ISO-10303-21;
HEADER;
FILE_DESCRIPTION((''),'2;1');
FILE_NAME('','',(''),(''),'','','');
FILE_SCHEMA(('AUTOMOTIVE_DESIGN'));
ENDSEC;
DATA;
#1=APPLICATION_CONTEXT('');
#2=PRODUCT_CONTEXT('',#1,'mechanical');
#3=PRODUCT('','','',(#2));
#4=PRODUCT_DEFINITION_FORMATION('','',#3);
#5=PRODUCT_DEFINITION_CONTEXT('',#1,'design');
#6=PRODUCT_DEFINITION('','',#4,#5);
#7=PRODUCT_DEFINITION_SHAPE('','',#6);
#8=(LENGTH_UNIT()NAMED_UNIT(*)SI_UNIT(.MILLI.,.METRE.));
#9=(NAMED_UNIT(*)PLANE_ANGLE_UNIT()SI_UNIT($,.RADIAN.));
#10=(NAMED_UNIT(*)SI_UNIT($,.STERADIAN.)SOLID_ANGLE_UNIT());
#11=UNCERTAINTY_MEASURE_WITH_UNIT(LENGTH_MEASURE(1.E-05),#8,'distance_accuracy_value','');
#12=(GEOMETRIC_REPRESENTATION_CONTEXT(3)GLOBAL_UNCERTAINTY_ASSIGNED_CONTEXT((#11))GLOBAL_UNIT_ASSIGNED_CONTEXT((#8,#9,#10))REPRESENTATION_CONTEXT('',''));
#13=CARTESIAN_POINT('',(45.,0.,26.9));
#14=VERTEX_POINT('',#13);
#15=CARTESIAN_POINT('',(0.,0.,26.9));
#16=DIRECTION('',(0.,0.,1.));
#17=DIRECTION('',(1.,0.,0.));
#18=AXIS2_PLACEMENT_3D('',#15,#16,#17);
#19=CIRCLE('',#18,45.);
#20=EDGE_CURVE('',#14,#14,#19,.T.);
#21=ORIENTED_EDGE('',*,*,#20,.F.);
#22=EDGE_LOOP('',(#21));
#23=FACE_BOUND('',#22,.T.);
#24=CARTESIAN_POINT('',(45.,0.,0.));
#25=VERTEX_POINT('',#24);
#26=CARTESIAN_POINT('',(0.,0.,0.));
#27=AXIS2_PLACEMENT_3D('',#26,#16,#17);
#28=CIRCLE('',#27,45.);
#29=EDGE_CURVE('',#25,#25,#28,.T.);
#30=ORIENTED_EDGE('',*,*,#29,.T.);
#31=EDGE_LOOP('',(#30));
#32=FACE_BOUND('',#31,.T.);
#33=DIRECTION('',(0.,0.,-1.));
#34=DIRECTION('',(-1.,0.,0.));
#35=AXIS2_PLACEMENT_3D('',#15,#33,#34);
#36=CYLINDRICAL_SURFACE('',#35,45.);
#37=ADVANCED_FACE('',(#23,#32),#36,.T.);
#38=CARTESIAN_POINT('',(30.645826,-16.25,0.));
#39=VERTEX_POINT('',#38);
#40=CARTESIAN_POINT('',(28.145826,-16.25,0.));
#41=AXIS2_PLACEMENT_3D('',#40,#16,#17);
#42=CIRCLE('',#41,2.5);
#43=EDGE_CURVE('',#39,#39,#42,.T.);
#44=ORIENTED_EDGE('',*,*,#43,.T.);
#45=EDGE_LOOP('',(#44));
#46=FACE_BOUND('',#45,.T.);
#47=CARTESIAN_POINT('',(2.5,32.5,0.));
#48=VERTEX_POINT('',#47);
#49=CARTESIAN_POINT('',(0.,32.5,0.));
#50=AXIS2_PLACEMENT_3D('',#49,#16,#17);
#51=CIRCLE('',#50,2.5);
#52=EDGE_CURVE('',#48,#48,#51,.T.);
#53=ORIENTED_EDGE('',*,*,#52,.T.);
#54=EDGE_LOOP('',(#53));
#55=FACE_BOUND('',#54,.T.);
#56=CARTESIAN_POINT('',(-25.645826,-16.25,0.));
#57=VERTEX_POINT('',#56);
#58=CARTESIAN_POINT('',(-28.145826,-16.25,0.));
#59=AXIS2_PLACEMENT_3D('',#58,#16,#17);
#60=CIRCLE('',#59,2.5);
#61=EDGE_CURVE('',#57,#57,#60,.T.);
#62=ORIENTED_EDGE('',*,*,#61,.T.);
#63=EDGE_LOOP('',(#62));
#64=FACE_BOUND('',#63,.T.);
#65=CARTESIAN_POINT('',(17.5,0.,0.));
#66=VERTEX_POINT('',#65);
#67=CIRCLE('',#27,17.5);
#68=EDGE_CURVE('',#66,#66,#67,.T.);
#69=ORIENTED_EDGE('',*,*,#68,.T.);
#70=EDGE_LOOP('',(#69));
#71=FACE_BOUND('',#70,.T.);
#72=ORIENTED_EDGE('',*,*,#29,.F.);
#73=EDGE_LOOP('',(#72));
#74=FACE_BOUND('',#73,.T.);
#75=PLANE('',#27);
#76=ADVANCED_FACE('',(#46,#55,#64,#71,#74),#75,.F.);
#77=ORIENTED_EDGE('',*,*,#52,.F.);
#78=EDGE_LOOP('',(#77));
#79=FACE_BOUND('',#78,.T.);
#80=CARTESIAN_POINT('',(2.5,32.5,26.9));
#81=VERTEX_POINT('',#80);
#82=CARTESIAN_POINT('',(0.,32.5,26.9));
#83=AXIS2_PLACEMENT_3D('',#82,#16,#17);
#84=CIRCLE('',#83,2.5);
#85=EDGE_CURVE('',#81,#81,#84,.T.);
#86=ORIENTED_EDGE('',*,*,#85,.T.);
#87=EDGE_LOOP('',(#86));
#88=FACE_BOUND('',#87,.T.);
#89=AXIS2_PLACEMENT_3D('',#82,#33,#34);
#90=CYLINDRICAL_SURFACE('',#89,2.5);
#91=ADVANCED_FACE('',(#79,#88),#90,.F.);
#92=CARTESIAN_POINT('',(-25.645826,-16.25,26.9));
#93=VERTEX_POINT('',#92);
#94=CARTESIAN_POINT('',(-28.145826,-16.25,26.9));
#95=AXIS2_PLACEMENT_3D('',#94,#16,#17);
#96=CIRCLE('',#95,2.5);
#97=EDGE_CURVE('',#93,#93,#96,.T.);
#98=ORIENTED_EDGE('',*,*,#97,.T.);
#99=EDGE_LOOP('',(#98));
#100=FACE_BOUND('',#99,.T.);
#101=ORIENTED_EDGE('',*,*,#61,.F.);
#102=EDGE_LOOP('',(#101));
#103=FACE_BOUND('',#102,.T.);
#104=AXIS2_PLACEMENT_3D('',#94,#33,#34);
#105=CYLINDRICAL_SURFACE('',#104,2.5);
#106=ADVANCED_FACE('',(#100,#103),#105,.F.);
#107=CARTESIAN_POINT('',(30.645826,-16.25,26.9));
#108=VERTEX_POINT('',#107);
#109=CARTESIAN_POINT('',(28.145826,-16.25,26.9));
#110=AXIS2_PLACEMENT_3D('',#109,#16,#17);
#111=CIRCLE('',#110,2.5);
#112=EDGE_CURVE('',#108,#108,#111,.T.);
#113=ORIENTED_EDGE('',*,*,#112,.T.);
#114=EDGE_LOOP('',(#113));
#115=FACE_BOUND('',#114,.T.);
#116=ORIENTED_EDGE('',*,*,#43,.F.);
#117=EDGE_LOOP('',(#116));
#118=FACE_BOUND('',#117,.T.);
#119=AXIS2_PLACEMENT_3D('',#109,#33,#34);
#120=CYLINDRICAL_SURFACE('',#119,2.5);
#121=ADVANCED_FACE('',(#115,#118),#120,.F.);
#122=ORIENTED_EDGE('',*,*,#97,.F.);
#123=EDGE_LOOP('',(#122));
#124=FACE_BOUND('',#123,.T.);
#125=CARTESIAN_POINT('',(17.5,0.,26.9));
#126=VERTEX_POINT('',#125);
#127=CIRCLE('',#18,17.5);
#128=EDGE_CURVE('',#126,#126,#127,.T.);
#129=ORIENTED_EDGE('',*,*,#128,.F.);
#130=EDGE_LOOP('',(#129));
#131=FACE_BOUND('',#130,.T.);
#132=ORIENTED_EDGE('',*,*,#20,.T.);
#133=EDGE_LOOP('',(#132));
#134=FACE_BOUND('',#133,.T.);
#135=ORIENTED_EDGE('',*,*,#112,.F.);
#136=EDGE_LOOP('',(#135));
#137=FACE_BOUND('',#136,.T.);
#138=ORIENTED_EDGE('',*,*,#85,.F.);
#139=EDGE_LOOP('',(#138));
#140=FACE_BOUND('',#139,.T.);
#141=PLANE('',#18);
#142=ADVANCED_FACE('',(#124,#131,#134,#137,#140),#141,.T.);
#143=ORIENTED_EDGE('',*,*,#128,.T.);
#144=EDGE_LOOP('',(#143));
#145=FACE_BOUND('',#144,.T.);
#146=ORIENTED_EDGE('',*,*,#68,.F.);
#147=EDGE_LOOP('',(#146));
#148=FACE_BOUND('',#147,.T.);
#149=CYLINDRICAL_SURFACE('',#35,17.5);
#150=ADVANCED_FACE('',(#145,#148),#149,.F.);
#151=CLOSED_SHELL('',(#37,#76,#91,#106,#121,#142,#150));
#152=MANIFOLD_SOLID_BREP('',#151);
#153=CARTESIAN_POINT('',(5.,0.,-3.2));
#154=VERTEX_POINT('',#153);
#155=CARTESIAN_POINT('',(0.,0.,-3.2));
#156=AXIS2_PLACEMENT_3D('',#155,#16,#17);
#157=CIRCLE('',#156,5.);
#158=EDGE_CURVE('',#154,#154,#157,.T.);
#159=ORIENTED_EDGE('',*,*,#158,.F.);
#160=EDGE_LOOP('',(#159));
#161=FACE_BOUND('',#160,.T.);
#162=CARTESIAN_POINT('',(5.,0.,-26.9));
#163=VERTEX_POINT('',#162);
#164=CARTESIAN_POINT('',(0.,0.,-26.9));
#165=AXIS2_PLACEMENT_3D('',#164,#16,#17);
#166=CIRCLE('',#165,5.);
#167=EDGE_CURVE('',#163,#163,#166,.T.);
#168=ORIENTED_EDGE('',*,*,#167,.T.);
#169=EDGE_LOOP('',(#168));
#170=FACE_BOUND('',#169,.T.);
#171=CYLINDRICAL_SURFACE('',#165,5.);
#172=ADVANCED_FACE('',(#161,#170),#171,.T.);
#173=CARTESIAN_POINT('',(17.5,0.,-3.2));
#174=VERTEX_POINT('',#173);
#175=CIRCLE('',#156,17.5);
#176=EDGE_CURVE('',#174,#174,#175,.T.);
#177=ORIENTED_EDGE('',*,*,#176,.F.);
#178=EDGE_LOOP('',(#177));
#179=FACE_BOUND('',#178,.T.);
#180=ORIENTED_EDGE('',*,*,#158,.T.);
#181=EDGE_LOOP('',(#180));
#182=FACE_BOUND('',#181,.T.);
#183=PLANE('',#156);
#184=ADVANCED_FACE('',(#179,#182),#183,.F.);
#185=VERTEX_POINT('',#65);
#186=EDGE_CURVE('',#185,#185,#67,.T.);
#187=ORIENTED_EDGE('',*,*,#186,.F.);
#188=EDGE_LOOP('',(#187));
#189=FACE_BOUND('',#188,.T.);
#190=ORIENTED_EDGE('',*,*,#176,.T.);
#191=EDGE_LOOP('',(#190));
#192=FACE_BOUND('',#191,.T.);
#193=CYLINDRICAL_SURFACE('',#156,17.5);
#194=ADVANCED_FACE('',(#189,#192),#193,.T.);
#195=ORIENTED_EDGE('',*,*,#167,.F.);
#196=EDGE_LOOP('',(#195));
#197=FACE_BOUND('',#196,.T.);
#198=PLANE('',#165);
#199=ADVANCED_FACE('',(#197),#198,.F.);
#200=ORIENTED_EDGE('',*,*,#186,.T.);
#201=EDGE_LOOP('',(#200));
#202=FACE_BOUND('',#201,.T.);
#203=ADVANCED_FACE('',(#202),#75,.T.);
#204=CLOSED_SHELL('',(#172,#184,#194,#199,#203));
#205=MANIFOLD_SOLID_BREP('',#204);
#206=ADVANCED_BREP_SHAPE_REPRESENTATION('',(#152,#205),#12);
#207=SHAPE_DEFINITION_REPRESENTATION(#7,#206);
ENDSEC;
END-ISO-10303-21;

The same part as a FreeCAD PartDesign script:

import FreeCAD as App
import Part
import Sketcher
from FreeCAD import Vector
Q = App.Units.Quantity

doc = App.newDocument("Part")
params = doc.addObject("Spreadsheet::Sheet", "Params")
for row, (alias, value) in enumerate([
    ("sketch1_diameter", "90 mm"),
    ("sketch1_diameter2", "5 mm"),
    ("sketch1_diameter3", "35 mm"),
    ("pad1_length", "26.9 mm"),
    ("sketch2_diameter", "10 mm"),
    ("pad2_length", "26.9 mm"),
    ("sketch3_diameter", "35 mm"),
    ("sketch3_diameter2", "10 mm"),
    ("pad3_length", "3.2 mm"),
], start=1):
    params.set(f"A{row}", alias)
    params.set(f"B{row}", "=" + value)
    params.setAlias(f"B{row}", alias)

body = doc.addObject("PartDesign::Body", "Body")

# Sketch on XY plane
sketch1 = body.newObject("Sketcher::SketchObject", "Sketch")
sketch1.AttachmentSupport = (doc.getObject("XY_Plane"), [""])
sketch1.MapMode = "FlatFace"
sketch1.addGeometry([
    Part.Circle(Vector(0, 0, 0), Vector(0, 0, 1), 45),  # 0
    Part.Circle(Vector(-28.1, -16.2, 0), Vector(0, 0, 1), 2.5),  # 1
    Part.Circle(Vector(0, 0, 0), Vector(0, 0, 1), 17.5),  # 2
    Part.Circle(Vector(28.1, -16.2, 0), Vector(0, 0, 1), 2.5),  # 3
    Part.Circle(Vector(0, 32.5, 0), Vector(0, 0, 1), 2.5),  # 4
], False)
sketch1.addConstraint([
    Sketcher.Constraint("Coincident", 0, 3, -1, 1),
    Sketcher.Constraint("Coincident", 2, 3, -1, 1),
    Sketcher.Constraint("Equal", 1, 3),
    Sketcher.Constraint("Equal", 3, 4),
    Sketcher.Constraint("Symmetric", 1, 3, 3, 3, -2),
    Sketcher.Constraint("PointOnObject", 4, 3, -2),
    Sketcher.Constraint("Diameter", 0, Q("90 mm")),
    Sketcher.Constraint("Diameter", 1, Q("5 mm")),
    Sketcher.Constraint("Diameter", 2, Q("35 mm")),
    Sketcher.Constraint("DistanceY", -1, 1, 4, 3, Q("32.5 mm")),
    Sketcher.Constraint("DistanceY", 1, 3, -1, 1, Q("16.25 mm")),
    Sketcher.Constraint("DistanceX", 1, 3, 3, 3, Q("56.291651 mm")),
])
sketch1.setExpression("Constraints[6]", "Params.sketch1_diameter")
sketch1.setExpression("Constraints[7]", "Params.sketch1_diameter2")
sketch1.setExpression("Constraints[8]", "Params.sketch1_diameter3")
pad1 = body.newObject("PartDesign::Pad", "Pad")
pad1.Profile = sketch1
pad1.setExpression("Length", "Params.pad1_length")
body2 = doc.addObject("PartDesign::Body", "Body001")

# Sketch on XY plane
sketch2 = body2.newObject("Sketcher::SketchObject", "Sketch001")
sketch2.AttachmentSupport = (doc.getObject("XY_Plane001"), [""])
sketch2.MapMode = "FlatFace"
sketch2.addGeometry(Part.Circle(Vector(0, 0, 0), Vector(0, 0, 1), 5), False)
sketch2.addConstraint([
    Sketcher.Constraint("Coincident", 0, 3, -1, 1),
    Sketcher.Constraint("Diameter", 0, Q("10 mm")),
])
sketch2.setExpression("Constraints[1]", "Params.sketch2_diameter")
pad2 = body2.newObject("PartDesign::Pad", "Pad001")
pad2.Profile = sketch2
pad2.setExpression("Length", "Params.pad2_length")
pad2.Reversed = True

# Sketch on XY plane
sketch3 = body2.newObject("Sketcher::SketchObject", "Sketch002")
sketch3.AttachmentSupport = (doc.getObject("XY_Plane001"), [""])
sketch3.MapMode = "FlatFace"
sketch3.addGeometry([
    Part.Circle(Vector(0, 0, 0), Vector(0, 0, 1), 18),
    Part.Circle(Vector(0, 0, 0), Vector(0, 0, 1), 5),
], False)
sketch3.addConstraint([
    Sketcher.Constraint("Coincident", 0, 3, -1, 1),
    Sketcher.Constraint("Coincident", 1, 3, -1, 1),
    Sketcher.Constraint("Diameter", 0, Q("35 mm")),
    Sketcher.Constraint("Diameter", 1, Q("10 mm")),
])
sketch3.setExpression("Constraints[2]", "Params.sketch3_diameter")
sketch3.setExpression("Constraints[3]", "Params.sketch3_diameter2")
pad3 = body2.newObject("PartDesign::Pad", "Pad002")
pad3.Profile = sketch3
pad3.setExpression("Length", "Params.pad3_length")
pad3.Reversed = True

doc.recompute()
